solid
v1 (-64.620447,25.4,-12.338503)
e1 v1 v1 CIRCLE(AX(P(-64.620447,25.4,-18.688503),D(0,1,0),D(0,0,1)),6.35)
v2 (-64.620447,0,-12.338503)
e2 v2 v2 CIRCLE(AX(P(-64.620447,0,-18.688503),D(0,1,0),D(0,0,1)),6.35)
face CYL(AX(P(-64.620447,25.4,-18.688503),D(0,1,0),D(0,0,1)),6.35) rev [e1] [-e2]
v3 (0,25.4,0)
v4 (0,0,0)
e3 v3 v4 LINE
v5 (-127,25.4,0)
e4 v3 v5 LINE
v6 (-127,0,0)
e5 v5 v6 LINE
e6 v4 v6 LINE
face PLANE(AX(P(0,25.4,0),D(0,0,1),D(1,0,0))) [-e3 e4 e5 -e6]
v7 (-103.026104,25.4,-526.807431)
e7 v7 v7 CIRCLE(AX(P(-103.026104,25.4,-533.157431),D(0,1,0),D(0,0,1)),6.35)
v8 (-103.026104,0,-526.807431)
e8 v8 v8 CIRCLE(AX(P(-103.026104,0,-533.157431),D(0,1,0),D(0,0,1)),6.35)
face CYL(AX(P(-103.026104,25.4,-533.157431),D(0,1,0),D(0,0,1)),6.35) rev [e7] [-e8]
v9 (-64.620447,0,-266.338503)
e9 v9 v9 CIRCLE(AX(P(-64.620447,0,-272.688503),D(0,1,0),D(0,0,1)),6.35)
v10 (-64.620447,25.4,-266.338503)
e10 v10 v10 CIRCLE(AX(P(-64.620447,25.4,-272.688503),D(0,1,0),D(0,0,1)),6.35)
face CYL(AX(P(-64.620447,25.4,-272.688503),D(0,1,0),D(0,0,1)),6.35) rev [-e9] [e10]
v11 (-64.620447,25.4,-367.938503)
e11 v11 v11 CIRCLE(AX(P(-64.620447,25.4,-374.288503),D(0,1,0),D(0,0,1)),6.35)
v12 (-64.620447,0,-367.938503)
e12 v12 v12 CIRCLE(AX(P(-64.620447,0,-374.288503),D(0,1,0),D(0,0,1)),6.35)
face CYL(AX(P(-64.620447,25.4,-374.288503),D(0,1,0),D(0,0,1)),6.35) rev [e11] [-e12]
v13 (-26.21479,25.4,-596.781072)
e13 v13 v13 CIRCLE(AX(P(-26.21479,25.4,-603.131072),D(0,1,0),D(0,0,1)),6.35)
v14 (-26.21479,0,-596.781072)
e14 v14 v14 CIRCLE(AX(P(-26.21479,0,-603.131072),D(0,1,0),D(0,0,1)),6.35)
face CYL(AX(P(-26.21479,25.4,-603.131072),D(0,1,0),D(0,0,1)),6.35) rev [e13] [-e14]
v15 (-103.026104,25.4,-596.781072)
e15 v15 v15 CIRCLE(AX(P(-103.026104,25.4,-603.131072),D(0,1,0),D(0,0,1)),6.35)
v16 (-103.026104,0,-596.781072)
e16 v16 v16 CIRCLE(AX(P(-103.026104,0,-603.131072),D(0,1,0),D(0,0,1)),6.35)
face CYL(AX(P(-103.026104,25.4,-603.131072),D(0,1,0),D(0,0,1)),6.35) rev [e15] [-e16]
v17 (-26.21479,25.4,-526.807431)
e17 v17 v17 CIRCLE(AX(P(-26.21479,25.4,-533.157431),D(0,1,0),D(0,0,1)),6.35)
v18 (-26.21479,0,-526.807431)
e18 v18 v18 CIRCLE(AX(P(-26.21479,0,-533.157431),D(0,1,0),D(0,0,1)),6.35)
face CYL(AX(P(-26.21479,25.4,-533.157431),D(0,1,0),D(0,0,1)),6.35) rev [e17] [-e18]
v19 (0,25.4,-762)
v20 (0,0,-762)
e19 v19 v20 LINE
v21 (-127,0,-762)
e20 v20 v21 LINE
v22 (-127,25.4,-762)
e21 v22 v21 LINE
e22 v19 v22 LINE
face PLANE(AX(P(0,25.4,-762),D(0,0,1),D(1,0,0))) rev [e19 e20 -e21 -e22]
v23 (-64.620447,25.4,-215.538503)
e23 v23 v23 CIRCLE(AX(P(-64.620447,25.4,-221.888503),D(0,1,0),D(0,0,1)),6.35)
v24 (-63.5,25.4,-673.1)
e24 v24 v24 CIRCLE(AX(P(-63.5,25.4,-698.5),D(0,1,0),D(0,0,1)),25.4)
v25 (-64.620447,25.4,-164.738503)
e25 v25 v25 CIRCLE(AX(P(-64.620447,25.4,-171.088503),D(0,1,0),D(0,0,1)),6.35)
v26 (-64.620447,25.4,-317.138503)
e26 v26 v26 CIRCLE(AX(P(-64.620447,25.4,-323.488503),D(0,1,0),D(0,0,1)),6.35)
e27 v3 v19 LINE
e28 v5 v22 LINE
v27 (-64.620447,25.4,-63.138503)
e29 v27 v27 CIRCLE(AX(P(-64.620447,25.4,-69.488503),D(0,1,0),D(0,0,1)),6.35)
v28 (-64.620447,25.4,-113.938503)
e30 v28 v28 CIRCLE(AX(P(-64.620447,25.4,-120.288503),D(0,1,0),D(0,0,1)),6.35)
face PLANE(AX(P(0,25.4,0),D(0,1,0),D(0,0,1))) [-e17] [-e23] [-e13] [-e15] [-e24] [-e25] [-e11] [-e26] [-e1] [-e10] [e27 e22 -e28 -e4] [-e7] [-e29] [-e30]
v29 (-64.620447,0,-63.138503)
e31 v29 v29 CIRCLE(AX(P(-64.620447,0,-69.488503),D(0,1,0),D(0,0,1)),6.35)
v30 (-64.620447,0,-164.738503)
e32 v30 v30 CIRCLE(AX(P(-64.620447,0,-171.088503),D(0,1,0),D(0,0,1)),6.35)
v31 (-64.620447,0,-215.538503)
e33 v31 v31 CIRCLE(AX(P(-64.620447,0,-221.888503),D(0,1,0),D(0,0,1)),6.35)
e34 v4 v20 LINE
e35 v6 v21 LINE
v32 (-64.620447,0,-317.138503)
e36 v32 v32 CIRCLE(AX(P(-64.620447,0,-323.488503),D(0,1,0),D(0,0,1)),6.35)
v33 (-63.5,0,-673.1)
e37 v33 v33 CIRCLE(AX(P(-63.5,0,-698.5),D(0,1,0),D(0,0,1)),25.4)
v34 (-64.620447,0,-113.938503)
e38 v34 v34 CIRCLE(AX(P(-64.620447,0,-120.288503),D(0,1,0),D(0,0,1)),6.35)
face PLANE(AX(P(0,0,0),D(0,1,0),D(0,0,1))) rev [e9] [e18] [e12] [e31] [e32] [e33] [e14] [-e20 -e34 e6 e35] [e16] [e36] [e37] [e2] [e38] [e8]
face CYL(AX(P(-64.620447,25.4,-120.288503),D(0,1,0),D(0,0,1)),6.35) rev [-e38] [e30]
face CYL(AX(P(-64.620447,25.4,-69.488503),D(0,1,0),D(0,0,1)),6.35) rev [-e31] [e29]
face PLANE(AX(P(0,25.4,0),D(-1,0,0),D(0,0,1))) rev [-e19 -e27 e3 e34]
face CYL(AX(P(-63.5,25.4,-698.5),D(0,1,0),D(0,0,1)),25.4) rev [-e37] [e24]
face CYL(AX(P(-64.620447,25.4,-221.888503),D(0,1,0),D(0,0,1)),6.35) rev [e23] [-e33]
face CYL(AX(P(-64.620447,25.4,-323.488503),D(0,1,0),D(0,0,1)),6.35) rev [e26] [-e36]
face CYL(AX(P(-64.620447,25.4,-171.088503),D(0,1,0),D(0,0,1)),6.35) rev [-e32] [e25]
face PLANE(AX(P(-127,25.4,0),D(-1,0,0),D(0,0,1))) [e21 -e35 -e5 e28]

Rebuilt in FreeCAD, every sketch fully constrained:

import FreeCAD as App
import Part
import Sketcher
Q = App.Units.Quantity


def add_polygon(sketch, points):
    """Adds a closed chain of lines whose ends are joined by coincident constraints."""
    first, n = sketch.GeometryCount, len(points)
    for a, b in zip(points, points[1:] + points[:1]):
        sketch.addGeometry(Part.LineSegment(App.Vector(*a, 0), App.Vector(*b, 0)), False)
    for i in range(n):
        sketch.addConstraint(Sketcher.Constraint("Coincident", first + i, 2, first + (i + 1) % n, 1))

doc = App.newDocument("Part")
body = doc.addObject("PartDesign::Body", "Body")

sketch1 = doc.addObject("Sketcher::SketchObject", "Sketch")
body.addObject(sketch1)
sketch1.AttachmentSupport = (doc.XZ_Plane, [""])
sketch1.MapMode = "FlatFace"
add_polygon(sketch1, [(-127, -762), (-127, 0), (0, 0), (0, -762)])
sketch1.addConstraint(Sketcher.Constraint("Vertical", 0))
sketch1.addConstraint(Sketcher.Constraint("Horizontal", 1))
sketch1.addConstraint(Sketcher.Constraint("Vertical", 2))
sketch1.addConstraint(Sketcher.Constraint("Horizontal", 3))
sketch1.addConstraint(Sketcher.Constraint("Coincident", 1, 2, -1, 1))
sketch1.addConstraint(Sketcher.Constraint("DistanceX", 1, 1, 1, 2, Q("5 in")))
sketch1.addConstraint(Sketcher.Constraint("DistanceY", 0, 1, 0, 2, Q("30 in")))
pad1 = doc.addObject("PartDesign::Pad", "Pad")
body.addObject(pad1)
pad1.Profile = sketch1
pad1.Length = Q("1 in")
pad1.Reversed = True

sketch2 = doc.addObject("Sketcher::SketchObject", "Sketch001")
body.addObject(sketch2)
sketch2.AttachmentSupport = (doc.XZ_Plane, [""])
sketch2.MapMode = "FlatFace"
sketch2.AttachmentOffset = App.Placement(App.Vector(0, 0, -1 * 25.4), App.Rotation())
sketch2.addGeometry(Part.Circle(App.Vector(-64, -698, 0), App.Vector(0, 0, 1), 25), False)
sketch2.addConstraint(Sketcher.Constraint("Diameter", 0, Q("2 in")))
sketch2.addConstraint(Sketcher.Constraint("DistanceX", 0, 3, -1, 1, Q("2.5 in")))
sketch2.addConstraint(Sketcher.Constraint("DistanceY", 0, 3, -1, 1, Q("27.5 in")))
doc.recompute()
hole = doc.addObject("PartDesign::Hole", "Hole")
body.addObject(hole)
hole.Profile = sketch2
hole.ThreadType = "None"
hole.Diameter = Q("2 in")
hole.DepthType = "ThroughAll"
hole.Reversed = True

sketch3 = doc.addObject("Sketcher::SketchObject", "Sketch002")
body.addObject(sketch3)
sketch3.AttachmentSupport = (doc.XZ_Plane, [""])
sketch3.MapMode = "FlatFace"
sketch3.AttachmentOffset = App.Placement(App.Vector(0, 0, -1 * 25.4), App.Rotation())
sketch3.addGeometry(Part.Circle(App.Vector(-103, -603, 0), App.Vector(0, 0, 1), 6), False)
sketch3.addGeometry(Part.Circle(App.Vector(-65, -374, 0), App.Vector(0, 0, 1), 6), False)
sketch3.addGeometry(Part.Circle(App.Vector(-26, -603, 0), App.Vector(0, 0, 1), 6), False)
sketch3.addGeometry(Part.Circle(App.Vector(-26, -533, 0), App.Vector(0, 0, 1), 6), False)
sketch3.addGeometry(Part.Circle(App.Vector(-103, -533, 0), App.Vector(0, 0, 1), 6), False)
sketch3.addGeometry(Part.Circle(App.Vector(-65, -323, 0), App.Vector(0, 0, 1), 6), False)
sketch3.addGeometry(Part.Circle(App.Vector(-65, -273, 0), App.Vector(0, 0, 1), 6), False)
sketch3.addGeometry(Part.Circle(App.Vector(-65, -222, 0), App.Vector(0, 0, 1), 6), False)
sketch3.addGeometry(Part.Circle(App.Vector(-65, -171, 0), App.Vector(0, 0, 1), 6), False)
sketch3.addGeometry(Part.Circle(App.Vector(-65, -120, 0), App.Vector(0, 0, 1), 6), False)
sketch3.addGeometry(Part.Circle(App.Vector(-65, -69, 0), App.Vector(0, 0, 1), 6), False)
sketch3.addGeometry(Part.Circle(App.Vector(-65, -19, 0), App.Vector(0, 0, 1), 6), False)
sketch3.addGeometry(Part.Circle(App.Vector(-65, 32, 0), App.Vector(0, 0, 1), 6), False)
sketch3.addConstraint(Sketcher.Constraint("Equal", 0, 1))
sketch3.addConstraint(Sketcher.Constraint("Equal", 1, 2))
sketch3.addConstraint(Sketcher.Constraint("Equal", 2, 3))
sketch3.addConstraint(Sketcher.Constraint("Equal", 3, 4))
sketch3.addConstraint(Sketcher.Constraint("Equal", 4, 5))
sketch3.addConstraint(Sketcher.Constraint("Equal", 5, 6))
sketch3.addConstraint(Sketcher.Constraint("Equal", 6, 7))
sketch3.addConstraint(Sketcher.Constraint("Equal", 7, 8))
sketch3.addConstraint(Sketcher.Constraint("Equal", 8, 9))
sketch3.addConstraint(Sketcher.Constraint("Equal", 9, 10))
sketch3.addConstraint(Sketcher.Constraint("Equal", 10, 11))
sketch3.addConstraint(Sketcher.Constraint("Equal", 11, 12))
sketch3.addConstraint(Sketcher.Constraint("Horizontal", 0, 3, 2, 3))
sketch3.addConstraint(Sketcher.Constraint("Horizontal", 3, 3, 4, 3))
sketch3.addConstraint(Sketcher.Constraint("Vertical", 2, 3, 3, 3))
sketch3.addConstraint(Sketcher.Constraint("Vertical", 0, 3, 4, 3))
sketch3.addConstraint(Sketcher.Constraint("Vertical", 1, 3, 5, 3))
sketch3.addConstraint(Sketcher.Constraint("Vertical", 5, 3, 6, 3))
sketch3.addConstraint(Sketcher.Constraint("Vertical", 6, 3, 7, 3))
sketch3.addConstraint(Sketcher.Constraint("Vertical", 7, 3, 8, 3))
sketch3.addConstraint(Sketcher.Constraint("Vertical", 8, 3, 9, 3))
sketch3.addConstraint(Sketcher.Constraint("Vertical", 9, 3, 10, 3))
sketch3.addConstraint(Sketcher.Constraint("Vertical", 10, 3, 11, 3))
sketch3.addConstraint(Sketcher.Constraint("Vertical", 11, 3, 12, 3))
sketch3.addConstraint(Sketcher.Constraint("Diameter", 0, Q("0.5 in")))
sketch3.addConstraint(Sketcher.Constraint("DistanceY", 1, 3, 5, 3, Q("2 in")))
sketch3.addConstraint(Sketcher.Constraint("DistanceY", 5, 3, 6, 3, Q("2 in")))
sketch3.addConstraint(Sketcher.Constraint("DistanceY", 6, 3, 7, 3, Q("2 in")))
sketch3.addConstraint(Sketcher.Constraint("DistanceY", 7, 3, 8, 3, Q("2 in")))
sketch3.addConstraint(Sketcher.Constraint("DistanceY", 8, 3, 9, 3, Q("2 in")))
sketch3.addConstraint(Sketcher.Constraint("DistanceY", 9, 3, 10, 3, Q("2 in")))
sketch3.addConstraint(Sketcher.Constraint("DistanceY", 10, 3, 11, 3, Q("2 in")))
sketch3.addConstraint(Sketcher.Constraint("DistanceY", 11, 3, 12, 3, Q("2 in")))
sketch3.addConstraint(Sketcher.Constraint("DistanceY", 0, 3, -1, 1, 603.131072))
sketch3.addConstraint(Sketcher.Constraint("DistanceX", 2, 3, -1, 1, 26.21479))
sketch3.addConstraint(Sketcher.Constraint("DistanceY", 3, 3, -1, 1, 533.157431))
sketch3.addConstraint(Sketcher.Constraint("DistanceY", 0, 3, 1, 3, 228.842569))
sketch3.addConstraint(Sketcher.Constraint("DistanceX", 0, 3, -1, 1, 103.026104))
sketch3.addConstraint(Sketcher.Constraint("DistanceX", 1, 3, -1, 1, 64.620447))
doc.recompute()
hole2 = doc.addObject("PartDesign::Hole", "Hole001")
body.addObject(hole2)
hole2.Profile = sketch3
hole2.ThreadType = "None"
hole2.Diameter = Q("0.5 in")
hole2.DepthType = "ThroughAll"
hole2.Reversed = True

doc.recompute()
